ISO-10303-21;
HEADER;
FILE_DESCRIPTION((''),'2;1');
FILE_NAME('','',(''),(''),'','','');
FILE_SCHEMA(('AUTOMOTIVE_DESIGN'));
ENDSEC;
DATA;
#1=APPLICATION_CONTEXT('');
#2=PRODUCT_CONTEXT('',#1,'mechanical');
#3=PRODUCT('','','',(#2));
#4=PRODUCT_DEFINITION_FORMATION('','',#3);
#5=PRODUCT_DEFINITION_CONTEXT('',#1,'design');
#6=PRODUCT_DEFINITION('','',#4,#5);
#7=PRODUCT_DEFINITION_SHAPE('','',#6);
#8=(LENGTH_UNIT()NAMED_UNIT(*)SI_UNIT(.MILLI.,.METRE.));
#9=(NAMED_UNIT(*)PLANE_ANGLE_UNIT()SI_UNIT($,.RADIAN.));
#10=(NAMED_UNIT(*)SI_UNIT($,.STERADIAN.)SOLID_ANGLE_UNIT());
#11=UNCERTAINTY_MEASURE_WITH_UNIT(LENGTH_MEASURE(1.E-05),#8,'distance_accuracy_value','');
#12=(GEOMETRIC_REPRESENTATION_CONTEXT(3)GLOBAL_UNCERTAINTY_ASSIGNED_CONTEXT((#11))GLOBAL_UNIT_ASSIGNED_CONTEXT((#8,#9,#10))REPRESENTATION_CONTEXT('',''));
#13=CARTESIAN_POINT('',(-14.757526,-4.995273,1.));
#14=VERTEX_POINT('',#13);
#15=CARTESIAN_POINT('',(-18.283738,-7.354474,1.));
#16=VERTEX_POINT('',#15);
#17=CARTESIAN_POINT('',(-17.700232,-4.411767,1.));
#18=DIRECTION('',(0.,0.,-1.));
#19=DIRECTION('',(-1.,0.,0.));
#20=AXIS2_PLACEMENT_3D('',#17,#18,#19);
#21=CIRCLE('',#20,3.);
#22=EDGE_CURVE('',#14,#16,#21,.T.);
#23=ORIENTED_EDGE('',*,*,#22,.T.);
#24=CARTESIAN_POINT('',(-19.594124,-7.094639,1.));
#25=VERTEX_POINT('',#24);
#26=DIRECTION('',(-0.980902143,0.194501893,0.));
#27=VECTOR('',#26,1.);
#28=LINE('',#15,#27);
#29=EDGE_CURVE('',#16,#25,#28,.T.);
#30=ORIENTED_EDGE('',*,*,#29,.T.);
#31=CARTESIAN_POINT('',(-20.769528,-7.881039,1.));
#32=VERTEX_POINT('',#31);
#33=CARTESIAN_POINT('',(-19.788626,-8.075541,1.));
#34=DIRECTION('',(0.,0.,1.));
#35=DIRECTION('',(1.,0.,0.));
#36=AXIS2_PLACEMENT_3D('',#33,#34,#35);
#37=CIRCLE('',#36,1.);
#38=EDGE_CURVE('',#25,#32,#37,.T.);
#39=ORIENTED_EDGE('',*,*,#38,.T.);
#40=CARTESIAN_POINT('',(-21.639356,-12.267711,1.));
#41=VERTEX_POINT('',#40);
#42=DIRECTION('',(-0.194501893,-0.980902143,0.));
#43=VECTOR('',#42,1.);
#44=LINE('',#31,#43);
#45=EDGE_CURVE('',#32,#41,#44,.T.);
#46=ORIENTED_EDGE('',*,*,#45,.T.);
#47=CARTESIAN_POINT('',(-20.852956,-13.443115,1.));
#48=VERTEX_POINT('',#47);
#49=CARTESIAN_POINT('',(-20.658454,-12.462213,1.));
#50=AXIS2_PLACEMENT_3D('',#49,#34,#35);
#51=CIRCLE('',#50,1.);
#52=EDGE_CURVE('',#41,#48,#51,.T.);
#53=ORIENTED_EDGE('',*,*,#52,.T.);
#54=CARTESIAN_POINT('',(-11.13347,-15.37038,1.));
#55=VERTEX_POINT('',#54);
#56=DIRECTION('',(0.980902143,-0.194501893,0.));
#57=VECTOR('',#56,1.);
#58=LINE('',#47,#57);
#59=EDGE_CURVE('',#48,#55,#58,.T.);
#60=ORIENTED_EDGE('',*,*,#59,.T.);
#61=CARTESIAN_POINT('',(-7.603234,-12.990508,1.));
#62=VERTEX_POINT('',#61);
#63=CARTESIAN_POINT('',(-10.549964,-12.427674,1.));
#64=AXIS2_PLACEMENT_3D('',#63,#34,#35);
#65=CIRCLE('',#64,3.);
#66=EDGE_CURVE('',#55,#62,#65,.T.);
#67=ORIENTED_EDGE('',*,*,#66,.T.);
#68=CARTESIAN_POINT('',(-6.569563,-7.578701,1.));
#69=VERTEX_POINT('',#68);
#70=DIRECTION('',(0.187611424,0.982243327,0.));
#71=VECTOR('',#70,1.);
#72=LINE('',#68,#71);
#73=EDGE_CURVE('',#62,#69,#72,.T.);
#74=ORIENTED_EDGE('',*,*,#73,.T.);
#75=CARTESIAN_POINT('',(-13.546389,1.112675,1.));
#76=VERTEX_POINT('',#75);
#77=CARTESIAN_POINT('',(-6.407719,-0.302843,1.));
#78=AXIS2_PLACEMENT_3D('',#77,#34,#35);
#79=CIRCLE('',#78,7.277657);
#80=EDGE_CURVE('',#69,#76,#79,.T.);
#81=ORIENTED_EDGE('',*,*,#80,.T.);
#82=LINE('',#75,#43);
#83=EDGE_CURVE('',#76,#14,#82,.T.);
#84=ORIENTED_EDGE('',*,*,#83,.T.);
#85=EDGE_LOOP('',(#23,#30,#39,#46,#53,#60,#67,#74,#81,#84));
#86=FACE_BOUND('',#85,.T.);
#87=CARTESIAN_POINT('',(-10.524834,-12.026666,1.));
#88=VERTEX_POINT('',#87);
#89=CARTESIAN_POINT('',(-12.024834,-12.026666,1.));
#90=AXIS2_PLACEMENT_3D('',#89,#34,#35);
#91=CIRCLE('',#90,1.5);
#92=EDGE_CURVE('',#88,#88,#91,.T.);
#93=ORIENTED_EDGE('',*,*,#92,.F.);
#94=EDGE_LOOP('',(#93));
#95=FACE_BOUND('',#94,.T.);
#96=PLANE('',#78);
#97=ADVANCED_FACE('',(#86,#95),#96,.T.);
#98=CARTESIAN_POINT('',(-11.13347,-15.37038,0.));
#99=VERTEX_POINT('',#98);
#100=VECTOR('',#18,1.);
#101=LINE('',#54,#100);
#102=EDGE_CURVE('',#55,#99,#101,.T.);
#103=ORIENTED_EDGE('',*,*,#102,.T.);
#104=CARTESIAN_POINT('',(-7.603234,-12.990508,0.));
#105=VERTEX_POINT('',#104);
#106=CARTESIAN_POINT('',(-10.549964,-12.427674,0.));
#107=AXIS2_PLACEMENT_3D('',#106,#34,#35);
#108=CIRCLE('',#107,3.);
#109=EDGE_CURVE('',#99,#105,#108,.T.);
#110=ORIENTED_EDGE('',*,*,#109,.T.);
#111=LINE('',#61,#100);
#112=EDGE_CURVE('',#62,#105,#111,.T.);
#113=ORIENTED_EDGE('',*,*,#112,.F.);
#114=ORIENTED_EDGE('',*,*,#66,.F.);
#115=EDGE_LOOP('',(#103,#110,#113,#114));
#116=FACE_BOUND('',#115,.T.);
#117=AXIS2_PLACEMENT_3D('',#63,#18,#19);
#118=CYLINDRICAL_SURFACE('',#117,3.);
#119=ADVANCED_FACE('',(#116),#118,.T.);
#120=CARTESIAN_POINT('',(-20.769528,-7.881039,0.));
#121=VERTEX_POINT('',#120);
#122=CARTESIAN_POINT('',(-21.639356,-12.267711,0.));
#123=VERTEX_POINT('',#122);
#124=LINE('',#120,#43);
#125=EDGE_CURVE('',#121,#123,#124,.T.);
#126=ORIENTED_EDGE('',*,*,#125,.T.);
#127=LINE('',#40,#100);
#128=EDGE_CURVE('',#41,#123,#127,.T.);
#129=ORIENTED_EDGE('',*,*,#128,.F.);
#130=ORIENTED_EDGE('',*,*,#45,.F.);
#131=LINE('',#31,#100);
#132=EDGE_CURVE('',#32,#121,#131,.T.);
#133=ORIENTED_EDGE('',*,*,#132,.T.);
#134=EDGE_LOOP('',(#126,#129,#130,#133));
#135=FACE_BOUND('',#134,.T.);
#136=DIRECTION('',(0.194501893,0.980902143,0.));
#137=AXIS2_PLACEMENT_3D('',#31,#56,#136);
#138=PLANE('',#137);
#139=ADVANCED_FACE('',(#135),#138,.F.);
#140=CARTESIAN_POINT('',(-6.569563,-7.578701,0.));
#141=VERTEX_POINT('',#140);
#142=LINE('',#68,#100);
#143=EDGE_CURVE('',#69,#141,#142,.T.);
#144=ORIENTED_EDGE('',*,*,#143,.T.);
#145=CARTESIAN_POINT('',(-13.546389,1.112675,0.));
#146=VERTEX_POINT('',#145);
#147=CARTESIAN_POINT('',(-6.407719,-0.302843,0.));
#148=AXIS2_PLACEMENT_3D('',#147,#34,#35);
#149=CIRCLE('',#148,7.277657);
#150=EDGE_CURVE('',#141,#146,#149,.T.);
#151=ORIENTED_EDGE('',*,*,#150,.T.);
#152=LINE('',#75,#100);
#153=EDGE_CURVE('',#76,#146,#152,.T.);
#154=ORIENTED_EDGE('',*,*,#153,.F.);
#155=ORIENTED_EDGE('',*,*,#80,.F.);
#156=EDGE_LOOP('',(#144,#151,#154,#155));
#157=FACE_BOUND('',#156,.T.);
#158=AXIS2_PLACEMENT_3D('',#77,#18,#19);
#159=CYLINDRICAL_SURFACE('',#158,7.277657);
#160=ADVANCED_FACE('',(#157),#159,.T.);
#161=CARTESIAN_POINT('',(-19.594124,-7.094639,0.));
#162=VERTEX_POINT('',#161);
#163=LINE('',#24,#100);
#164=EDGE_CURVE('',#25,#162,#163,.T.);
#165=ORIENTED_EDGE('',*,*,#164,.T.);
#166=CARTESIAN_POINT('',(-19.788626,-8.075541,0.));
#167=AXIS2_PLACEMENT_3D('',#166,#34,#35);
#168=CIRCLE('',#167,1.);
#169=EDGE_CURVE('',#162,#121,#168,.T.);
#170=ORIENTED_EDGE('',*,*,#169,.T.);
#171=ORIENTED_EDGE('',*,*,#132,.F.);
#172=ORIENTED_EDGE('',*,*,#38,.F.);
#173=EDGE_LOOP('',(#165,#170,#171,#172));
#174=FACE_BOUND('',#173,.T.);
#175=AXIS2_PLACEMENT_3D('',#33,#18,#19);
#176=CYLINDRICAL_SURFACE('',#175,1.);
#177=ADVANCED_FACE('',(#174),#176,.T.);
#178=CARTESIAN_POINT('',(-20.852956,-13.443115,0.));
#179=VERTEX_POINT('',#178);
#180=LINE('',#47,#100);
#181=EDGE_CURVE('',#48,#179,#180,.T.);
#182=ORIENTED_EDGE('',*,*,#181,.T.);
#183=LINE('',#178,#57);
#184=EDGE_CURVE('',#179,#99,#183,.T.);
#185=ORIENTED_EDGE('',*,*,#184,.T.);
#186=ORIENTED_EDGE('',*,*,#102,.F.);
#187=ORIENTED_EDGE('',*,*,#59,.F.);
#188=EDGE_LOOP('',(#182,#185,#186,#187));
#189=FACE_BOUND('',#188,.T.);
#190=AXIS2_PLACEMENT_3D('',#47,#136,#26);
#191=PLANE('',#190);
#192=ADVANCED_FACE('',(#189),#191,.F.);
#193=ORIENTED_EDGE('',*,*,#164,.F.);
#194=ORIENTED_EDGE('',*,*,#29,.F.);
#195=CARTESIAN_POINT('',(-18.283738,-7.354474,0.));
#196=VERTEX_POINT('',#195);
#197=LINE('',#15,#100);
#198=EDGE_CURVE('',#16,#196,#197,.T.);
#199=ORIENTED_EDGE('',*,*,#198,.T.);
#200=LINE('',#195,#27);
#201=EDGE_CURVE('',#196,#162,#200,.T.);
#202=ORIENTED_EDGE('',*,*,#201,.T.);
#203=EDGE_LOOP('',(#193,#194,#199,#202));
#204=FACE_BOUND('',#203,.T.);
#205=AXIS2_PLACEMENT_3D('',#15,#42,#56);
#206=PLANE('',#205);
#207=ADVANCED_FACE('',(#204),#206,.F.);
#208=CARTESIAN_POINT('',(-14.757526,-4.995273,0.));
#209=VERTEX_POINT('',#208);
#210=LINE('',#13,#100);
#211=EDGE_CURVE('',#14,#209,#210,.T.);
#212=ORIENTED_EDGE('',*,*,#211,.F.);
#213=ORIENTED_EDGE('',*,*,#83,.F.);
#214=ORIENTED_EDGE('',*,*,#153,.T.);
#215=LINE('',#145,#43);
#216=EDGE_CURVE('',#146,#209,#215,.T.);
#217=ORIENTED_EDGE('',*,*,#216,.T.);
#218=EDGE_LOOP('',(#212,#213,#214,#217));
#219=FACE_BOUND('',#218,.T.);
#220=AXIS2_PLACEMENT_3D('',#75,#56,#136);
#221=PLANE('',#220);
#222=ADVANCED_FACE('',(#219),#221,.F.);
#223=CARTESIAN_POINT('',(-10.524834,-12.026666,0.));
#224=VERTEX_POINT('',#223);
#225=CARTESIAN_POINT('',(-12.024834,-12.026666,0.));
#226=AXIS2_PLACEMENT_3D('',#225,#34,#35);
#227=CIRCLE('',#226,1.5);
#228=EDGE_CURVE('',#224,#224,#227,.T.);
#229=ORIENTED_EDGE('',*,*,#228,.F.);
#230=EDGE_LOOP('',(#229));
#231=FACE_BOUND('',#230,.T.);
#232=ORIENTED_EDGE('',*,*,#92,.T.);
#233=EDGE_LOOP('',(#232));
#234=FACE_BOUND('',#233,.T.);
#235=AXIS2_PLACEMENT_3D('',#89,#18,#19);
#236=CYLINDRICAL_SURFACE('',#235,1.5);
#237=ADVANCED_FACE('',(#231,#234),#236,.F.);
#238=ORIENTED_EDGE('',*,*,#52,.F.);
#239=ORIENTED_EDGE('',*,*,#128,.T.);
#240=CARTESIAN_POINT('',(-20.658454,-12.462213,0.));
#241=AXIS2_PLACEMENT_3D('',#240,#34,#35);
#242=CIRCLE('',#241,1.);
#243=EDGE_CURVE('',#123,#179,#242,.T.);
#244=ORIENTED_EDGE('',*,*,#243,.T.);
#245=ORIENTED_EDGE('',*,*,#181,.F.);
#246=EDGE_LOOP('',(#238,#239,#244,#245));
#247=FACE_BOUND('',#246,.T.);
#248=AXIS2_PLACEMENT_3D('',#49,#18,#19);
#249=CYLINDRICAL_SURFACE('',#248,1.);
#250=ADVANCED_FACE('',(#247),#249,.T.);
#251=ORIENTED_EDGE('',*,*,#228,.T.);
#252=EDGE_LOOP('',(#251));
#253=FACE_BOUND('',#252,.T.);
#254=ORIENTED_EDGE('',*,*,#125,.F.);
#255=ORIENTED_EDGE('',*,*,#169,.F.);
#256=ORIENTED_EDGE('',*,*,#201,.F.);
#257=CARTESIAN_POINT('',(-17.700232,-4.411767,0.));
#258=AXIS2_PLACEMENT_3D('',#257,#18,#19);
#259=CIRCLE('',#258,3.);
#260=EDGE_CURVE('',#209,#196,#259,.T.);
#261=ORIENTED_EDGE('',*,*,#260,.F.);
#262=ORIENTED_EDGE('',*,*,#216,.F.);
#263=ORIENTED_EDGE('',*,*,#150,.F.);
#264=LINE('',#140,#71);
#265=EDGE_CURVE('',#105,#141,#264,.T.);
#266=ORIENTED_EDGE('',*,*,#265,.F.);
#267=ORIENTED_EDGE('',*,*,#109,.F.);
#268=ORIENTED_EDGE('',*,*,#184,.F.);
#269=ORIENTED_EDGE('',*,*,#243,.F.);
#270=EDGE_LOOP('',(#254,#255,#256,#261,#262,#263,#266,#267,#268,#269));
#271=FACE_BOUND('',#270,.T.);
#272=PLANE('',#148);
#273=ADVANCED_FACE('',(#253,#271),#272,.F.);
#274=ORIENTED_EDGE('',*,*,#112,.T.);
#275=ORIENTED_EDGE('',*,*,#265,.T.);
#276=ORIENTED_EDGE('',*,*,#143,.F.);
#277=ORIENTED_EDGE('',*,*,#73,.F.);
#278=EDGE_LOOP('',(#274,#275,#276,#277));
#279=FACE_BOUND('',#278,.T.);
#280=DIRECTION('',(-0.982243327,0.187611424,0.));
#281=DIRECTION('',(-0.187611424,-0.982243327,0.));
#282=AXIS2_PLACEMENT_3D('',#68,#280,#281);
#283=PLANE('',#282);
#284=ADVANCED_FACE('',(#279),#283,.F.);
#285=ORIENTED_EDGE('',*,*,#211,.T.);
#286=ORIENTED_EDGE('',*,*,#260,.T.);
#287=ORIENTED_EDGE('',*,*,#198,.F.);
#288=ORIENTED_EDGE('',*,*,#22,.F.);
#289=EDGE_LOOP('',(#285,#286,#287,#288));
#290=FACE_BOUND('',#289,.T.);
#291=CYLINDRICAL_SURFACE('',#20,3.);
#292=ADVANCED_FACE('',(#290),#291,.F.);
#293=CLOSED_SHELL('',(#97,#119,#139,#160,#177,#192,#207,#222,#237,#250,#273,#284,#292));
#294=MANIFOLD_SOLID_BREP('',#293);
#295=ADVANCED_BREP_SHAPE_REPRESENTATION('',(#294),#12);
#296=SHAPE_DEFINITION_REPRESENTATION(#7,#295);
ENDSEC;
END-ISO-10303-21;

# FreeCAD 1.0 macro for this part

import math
import FreeCAD as App
import Part
import Sketcher
Q = App.Units.Quantity

doc = App.newDocument("Part")
params = doc.addObject("Spreadsheet::Sheet", "Params")
for row, (alias, value) in enumerate([
    ("sketch1_diameter", "3 mm"),
    ("sketch1_radius", "3 mm"),
    ("sketch1_radius2", "1 mm"),
    ("pad1_length", "1 mm"),
], start=1):
    params.set(f"A{row}", alias)
    params.set(f"B{row}", "=" + value)
    params.setAlias(f"B{row}", alias)

body = doc.addObject("PartDesign::Body", "Body")

# Sketch on XY plane
sketch1 = body.newObject("Sketcher::SketchObject", "Sketch")
sketch1.AttachmentSupport = (doc.getObject("XY_Plane"), [""])
sketch1.MapMode = "FlatFace"
sketch1.addGeometry(Part.LineSegment(App.Vector(-13.5, 1.1, 0), App.Vector(-14.8, -5, 0)), False)
sketch1.addGeometry(Part.ArcOfCircle(Part.Circle(App.Vector(-17.7, -4.4, 0), App.Vector(0, 0, 1), 3), math.radians(-101), math.radians(-11)), False)
sketch1.addGeometry(Part.LineSegment(App.Vector(-18.3, -7.4, 0), App.Vector(-19.6, -7.1, 0)), False)
sketch1.addGeometry(Part.ArcOfCircle(Part.Circle(App.Vector(-19.8, -8.1, 0), App.Vector(0, 0, 1), 1), math.radians(79), math.radians(169)), False)
sketch1.addGeometry(Part.LineSegment(App.Vector(-20.8, -7.9, 0), App.Vector(-21.6, -12.3, 0)), False)
sketch1.addGeometry(Part.ArcOfCircle(Part.Circle(App.Vector(-20.7, -12.5, 0), App.Vector(0, 0, 1), 1), math.radians(169), math.radians(259)), False)
sketch1.addGeometry(Part.LineSegment(App.Vector(-20.9, -13.4, 0), App.Vector(-11.1, -15.4, 0)), False)
sketch1.addGeometry(Part.ArcOfCircle(Part.Circle(App.Vector(-10.5, -12.4, 0), App.Vector(0, 0, 1), 3), math.radians(-101), math.radians(-11)), False)
sketch1.addGeometry(Part.LineSegment(App.Vector(-7.6, -13, 0), App.Vector(-6.6, -7.6, 0)), False)
sketch1.addGeometry(Part.ArcOfCircle(Part.Circle(App.Vector(-6.4, -0.3, 0), App.Vector(0, 0, 1), 7.3), math.radians(-91), math.radians(169)), False)
sketch1.addGeometry(Part.Circle(App.Vector(-12, -12, 0), App.Vector(0, 0, 1), 1.5), False)
sketch1.addConstraint(Sketcher.Constraint("Tangent", 0, 2, 1, 2))
sketch1.addConstraint(Sketcher.Constraint("Tangent", 1, 1, 2, 1))
sketch1.addConstraint(Sketcher.Constraint("Tangent", 2, 2, 3, 1))
sketch1.addConstraint(Sketcher.Constraint("Tangent", 3, 2, 4, 1))
sketch1.addConstraint(Sketcher.Constraint("Tangent", 4, 2, 5, 1))
sketch1.addConstraint(Sketcher.Constraint("Tangent", 5, 2, 6, 1))
sketch1.addConstraint(Sketcher.Constraint("Tangent", 6, 2, 7, 1))
sketch1.addConstraint(Sketcher.Constraint("Tangent", 7, 2, 8, 1))
sketch1.addConstraint(Sketcher.Constraint("Coincident", 8, 2, 9, 1))
sketch1.addConstraint(Sketcher.Constraint("Tangent", 9, 2, 0, 1))
sketch1.addConstraint(Sketcher.Constraint("Equal", 3, 5))
sketch1.addConstraint(Sketcher.Constraint("Equal", 1, 7))
sketch1.addConstraint(Sketcher.Constraint("Perpendicular", 0, 2))
sketch1.addConstraint(Sketcher.Constraint("Perpendicular", 2, 4))
sketch1.addConstraint(Sketcher.Constraint("Perpendicular", 4, 6))
sketch1.addConstraint(Sketcher.Constraint("Diameter", 10, Q("3 mm")))
sketch1.addConstraint(Sketcher.Constraint("Radius", 1, Q("3 mm")))
sketch1.addConstraint(Sketcher.Constraint("Radius", 3, Q("1 mm")))
sketch1.addConstraint(Sketcher.Constraint("Radius", 9, Q("7.277657 mm")))
sketch1.addConstraint(Sketcher.Constraint("Distance", 2, Q("1.335899 mm")))
sketch1.addConstraint(Sketcher.Constraint("DistanceY", 8, 2, -1, 1, Q("7.578701 mm")))
sketch1.addConstraint(Sketcher.Constraint("DistanceX", 1, 3, 10, 3, Q("5.675399 mm")))
sketch1.addConstraint(Sketcher.Constraint("DistanceY", 10, 3, 1, 3, Q("7.614899 mm")))
sketch1.addConstraint(Sketcher.Constraint("DistanceX", 3, 3, 0, 2, Q("5.0311 mm")))
sketch1.addConstraint(Sketcher.Constraint("DistanceY", 7, 3, 0, 2, Q("7.432401 mm")))
sketch1.addConstraint(Sketcher.Constraint("DistanceX", 10, 3, 7, 2, Q("4.421599 mm")))
sketch1.addConstraint(Sketcher.Constraint("DistanceX", 7, 3, 8, 2, Q("3.980401 mm")))
sketch1.addConstraint(Sketcher.Constraint("Distance", 6, Q("9.908721 mm")))
sketch1.addConstraint(Sketcher.Constraint("DistanceX", 9, 3, -1, 1, Q("6.407719 mm")))
sketch1.setExpression("Constraints[15]", "Params.sketch1_diameter")
sketch1.setExpression("Constraints[16]", "Params.sketch1_radius")
sketch1.setExpression("Constraints[17]", "Params.sketch1_radius2")
pad1 = body.newObject("PartDesign::Pad", "Pad")
pad1.Profile = sketch1
pad1.setExpression("Length", "Params.pad1_length")

doc.recompute()
